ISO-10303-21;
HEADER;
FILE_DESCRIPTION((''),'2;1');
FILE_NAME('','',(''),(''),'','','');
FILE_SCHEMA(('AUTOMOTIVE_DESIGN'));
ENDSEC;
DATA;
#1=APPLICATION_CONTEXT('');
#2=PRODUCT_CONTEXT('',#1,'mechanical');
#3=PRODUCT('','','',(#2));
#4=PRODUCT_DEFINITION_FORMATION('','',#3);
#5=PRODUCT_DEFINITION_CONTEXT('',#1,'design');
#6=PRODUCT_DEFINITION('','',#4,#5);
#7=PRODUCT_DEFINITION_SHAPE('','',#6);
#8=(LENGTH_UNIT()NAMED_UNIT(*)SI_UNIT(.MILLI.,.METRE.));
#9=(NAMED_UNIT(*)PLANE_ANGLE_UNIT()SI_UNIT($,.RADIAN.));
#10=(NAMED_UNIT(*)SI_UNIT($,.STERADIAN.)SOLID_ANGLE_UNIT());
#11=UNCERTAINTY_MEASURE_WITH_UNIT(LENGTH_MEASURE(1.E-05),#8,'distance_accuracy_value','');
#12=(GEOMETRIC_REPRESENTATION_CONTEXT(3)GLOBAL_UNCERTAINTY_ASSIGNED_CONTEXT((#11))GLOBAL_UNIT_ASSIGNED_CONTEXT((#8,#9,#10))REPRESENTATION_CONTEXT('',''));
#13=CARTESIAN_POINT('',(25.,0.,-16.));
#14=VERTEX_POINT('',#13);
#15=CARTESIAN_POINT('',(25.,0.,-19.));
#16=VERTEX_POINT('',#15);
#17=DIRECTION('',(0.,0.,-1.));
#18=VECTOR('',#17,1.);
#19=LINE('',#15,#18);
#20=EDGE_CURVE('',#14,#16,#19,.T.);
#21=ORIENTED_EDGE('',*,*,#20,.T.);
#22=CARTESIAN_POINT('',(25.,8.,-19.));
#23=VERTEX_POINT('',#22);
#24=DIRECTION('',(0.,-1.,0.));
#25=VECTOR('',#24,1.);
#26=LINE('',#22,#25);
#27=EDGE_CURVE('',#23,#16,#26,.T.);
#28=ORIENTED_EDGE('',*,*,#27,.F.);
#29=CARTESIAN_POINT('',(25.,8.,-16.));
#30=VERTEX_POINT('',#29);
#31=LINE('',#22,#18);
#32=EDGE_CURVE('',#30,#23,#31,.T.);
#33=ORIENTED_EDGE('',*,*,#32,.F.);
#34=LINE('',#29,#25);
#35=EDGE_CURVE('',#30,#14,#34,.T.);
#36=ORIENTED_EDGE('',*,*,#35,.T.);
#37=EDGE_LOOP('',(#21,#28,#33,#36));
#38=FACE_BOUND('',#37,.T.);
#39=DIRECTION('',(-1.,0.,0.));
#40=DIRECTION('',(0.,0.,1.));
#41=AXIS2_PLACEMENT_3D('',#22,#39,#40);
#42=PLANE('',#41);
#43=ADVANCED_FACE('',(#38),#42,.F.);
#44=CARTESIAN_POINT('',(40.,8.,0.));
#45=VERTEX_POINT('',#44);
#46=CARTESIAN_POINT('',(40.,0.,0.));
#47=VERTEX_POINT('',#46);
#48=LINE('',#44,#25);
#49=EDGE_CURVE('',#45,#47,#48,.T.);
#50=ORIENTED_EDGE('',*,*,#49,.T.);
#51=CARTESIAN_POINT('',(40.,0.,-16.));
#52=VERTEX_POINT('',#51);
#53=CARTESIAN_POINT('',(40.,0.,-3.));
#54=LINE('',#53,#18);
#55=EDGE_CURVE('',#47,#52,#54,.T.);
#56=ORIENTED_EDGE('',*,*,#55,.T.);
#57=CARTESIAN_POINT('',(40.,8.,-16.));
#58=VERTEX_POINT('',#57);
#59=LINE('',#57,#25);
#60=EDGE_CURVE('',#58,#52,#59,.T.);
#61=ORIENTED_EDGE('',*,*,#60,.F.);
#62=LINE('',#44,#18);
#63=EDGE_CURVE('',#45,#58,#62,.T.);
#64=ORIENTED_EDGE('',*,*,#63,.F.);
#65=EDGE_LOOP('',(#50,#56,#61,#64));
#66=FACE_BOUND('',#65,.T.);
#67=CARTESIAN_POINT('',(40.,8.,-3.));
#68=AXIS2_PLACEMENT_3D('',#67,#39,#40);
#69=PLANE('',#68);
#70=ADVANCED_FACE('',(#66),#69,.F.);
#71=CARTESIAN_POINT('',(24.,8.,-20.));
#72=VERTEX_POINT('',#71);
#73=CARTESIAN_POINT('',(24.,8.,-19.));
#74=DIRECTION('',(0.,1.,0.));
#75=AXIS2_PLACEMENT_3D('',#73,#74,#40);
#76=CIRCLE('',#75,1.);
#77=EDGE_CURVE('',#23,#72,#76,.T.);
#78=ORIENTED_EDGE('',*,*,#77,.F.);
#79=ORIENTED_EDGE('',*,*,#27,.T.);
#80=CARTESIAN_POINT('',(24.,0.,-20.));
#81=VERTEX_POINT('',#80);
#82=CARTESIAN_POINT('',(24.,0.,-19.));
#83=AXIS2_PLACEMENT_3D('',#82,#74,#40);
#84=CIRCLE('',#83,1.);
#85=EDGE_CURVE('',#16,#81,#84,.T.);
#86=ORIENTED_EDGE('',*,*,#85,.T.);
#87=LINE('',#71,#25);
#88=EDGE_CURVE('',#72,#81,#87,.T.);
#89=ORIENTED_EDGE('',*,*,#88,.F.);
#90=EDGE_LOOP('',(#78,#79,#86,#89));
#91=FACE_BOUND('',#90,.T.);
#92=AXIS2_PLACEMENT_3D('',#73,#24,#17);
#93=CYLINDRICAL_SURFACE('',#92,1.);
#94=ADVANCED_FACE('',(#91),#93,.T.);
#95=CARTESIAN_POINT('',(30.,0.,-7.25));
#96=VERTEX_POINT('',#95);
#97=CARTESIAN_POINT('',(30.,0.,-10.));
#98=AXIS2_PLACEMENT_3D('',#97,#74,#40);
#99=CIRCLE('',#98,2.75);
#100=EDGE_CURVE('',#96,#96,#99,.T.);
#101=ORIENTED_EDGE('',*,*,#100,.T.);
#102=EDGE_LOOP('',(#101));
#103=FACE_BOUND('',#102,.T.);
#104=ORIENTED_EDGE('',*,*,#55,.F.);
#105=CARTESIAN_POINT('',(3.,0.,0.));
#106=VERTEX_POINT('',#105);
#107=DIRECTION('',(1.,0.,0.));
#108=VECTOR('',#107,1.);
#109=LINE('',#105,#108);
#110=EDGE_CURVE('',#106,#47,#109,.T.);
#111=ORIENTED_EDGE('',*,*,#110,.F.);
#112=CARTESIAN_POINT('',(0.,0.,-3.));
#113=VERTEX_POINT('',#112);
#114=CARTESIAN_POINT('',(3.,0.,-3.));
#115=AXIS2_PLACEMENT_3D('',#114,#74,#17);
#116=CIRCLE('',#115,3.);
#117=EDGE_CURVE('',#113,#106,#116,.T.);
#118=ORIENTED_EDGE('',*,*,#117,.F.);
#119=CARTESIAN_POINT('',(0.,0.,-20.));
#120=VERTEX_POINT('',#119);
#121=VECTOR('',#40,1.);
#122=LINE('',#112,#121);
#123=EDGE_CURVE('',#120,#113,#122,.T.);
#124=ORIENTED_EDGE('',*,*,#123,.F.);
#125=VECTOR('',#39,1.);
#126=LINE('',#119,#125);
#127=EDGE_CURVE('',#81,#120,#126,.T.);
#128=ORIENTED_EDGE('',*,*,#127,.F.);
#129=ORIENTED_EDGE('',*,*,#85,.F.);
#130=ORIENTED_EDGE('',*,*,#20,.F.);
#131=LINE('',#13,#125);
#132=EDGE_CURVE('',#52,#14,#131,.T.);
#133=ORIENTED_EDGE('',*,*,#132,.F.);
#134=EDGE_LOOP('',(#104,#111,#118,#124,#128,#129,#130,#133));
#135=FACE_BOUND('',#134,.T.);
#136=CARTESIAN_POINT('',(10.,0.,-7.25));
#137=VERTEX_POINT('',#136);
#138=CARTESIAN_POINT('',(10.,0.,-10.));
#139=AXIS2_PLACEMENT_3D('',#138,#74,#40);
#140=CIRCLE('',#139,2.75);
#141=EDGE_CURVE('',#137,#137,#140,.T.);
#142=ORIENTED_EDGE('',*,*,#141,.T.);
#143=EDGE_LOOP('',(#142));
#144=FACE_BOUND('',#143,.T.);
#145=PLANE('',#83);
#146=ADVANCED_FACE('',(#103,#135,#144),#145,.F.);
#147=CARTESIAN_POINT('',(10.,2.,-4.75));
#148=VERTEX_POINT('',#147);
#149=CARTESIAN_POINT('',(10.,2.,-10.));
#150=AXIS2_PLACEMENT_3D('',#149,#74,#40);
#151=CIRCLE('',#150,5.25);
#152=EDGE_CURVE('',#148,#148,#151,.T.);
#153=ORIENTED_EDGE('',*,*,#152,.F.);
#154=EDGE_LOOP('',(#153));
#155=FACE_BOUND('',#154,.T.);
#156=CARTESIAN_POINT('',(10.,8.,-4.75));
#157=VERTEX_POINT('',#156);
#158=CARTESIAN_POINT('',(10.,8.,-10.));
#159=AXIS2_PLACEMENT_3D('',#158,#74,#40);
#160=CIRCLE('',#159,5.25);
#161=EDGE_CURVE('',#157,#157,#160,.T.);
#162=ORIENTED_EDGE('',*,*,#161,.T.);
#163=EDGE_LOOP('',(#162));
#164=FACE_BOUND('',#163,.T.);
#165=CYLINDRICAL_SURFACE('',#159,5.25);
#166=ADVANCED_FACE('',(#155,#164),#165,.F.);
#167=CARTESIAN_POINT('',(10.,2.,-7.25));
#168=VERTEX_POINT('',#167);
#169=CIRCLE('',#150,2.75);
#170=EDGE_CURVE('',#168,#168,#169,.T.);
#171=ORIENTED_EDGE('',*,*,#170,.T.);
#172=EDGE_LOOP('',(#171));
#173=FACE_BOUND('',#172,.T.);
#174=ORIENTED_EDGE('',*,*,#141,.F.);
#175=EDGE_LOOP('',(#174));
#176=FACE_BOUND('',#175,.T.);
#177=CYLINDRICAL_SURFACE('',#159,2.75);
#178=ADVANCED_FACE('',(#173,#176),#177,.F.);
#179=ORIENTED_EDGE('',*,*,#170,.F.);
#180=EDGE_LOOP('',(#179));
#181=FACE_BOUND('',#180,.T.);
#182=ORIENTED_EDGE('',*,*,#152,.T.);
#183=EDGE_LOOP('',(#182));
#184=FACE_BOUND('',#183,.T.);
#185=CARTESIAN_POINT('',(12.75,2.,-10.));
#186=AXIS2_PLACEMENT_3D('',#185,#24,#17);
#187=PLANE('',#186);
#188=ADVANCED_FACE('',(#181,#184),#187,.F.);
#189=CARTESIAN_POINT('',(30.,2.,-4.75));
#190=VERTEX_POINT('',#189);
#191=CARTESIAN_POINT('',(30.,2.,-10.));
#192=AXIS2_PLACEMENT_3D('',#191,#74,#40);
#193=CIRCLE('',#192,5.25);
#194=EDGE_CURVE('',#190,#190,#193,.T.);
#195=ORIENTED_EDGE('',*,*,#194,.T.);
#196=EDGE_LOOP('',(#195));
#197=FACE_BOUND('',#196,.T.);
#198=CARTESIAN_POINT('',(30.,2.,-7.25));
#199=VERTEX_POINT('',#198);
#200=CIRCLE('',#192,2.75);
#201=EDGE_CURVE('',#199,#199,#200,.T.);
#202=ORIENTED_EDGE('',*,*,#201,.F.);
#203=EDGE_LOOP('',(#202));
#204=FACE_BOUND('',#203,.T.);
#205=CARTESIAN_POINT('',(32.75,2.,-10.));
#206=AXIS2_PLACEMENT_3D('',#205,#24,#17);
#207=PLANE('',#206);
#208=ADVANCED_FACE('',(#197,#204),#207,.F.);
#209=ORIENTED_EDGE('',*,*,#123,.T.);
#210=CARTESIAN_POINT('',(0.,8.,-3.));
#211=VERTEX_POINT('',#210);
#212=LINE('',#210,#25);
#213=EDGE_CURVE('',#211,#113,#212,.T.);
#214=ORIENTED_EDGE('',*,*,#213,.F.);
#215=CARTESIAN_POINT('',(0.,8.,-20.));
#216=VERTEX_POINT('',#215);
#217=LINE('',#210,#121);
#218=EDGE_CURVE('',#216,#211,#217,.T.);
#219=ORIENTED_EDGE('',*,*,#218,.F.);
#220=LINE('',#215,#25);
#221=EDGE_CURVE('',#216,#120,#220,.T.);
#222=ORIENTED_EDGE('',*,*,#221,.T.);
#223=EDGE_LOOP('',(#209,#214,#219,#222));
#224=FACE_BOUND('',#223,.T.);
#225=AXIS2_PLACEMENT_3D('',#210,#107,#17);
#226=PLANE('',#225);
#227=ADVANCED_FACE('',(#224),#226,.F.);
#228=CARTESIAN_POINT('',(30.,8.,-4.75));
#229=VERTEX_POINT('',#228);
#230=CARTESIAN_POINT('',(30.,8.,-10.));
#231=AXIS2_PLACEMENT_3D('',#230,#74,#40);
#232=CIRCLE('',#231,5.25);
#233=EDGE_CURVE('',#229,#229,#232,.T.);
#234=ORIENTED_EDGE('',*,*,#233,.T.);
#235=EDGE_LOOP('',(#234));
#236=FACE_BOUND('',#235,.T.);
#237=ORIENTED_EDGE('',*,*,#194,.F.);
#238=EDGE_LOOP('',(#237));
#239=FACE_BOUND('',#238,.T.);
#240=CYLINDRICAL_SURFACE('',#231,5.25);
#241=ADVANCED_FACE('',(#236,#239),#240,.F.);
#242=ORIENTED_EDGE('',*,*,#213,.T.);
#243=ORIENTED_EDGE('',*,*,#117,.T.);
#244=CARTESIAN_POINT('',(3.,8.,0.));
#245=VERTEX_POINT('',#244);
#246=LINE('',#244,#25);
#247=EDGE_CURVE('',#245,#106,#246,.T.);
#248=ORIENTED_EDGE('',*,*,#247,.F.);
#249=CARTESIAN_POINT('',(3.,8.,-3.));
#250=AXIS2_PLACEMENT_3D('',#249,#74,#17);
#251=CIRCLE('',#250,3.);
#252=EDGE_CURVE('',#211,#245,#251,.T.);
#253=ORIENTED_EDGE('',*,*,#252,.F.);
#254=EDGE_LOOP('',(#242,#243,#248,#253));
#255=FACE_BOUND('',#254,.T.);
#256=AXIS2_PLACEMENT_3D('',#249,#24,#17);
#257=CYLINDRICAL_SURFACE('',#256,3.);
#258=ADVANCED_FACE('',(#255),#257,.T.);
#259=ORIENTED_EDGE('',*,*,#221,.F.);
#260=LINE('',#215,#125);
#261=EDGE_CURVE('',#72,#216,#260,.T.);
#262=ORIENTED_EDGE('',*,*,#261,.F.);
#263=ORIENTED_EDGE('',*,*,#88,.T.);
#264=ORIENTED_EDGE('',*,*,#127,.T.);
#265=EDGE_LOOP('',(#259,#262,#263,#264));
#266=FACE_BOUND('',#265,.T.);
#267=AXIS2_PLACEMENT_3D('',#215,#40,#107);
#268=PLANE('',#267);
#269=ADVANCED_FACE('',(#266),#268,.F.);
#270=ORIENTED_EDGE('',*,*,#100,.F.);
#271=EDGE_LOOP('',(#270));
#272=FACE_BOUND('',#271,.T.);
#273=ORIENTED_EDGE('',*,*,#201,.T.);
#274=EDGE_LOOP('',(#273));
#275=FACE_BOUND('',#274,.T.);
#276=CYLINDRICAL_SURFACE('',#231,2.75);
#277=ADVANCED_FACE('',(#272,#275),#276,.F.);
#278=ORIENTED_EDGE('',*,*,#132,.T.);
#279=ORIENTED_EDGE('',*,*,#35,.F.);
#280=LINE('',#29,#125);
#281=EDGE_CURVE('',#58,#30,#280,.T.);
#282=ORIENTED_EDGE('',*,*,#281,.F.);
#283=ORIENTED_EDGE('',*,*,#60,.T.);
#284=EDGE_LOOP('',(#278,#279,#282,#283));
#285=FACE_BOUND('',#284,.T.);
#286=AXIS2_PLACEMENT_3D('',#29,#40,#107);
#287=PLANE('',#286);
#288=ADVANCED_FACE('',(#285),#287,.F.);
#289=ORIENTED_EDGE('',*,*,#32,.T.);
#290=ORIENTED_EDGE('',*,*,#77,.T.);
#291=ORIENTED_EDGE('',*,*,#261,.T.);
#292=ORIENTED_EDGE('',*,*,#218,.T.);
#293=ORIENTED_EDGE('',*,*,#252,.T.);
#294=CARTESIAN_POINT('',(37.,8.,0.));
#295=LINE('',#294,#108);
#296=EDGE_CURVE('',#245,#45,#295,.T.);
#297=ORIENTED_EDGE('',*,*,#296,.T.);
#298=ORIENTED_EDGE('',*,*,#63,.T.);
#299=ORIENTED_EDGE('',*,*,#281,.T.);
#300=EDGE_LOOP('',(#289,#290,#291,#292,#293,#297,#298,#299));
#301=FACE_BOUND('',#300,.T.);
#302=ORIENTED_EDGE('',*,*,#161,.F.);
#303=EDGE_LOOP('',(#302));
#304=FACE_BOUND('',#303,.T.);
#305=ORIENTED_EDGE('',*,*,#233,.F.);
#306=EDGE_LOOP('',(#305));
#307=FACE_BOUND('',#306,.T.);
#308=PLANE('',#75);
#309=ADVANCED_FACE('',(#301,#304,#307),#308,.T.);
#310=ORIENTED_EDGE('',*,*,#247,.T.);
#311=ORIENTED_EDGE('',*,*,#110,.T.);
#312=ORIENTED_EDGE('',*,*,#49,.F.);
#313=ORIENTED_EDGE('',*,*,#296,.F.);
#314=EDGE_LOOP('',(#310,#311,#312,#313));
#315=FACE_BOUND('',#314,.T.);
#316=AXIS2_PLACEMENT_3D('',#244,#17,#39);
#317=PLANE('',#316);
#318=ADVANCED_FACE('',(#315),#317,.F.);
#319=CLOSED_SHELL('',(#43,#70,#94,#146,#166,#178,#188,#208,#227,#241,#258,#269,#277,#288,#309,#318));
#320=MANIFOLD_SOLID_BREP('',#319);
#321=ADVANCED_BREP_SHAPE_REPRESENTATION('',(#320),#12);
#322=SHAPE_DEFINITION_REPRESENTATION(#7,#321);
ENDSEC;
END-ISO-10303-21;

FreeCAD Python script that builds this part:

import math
import FreeCAD as App
import Part
import Sketcher
Q = App.Units.Quantity

doc = App.newDocument("Part")
body = doc.addObject("PartDesign::Body", "Body")

sketch1 = doc.addObject("Sketcher::SketchObject", "Sketch")
body.addObject(sketch1)
sketch1.AttachmentSupport = (doc.XZ_Plane, [""])
sketch1.MapMode = "FlatFace"
sketch1.addGeometry([
    Part.LineSegment(App.Vector(3, 0, 0), App.Vector(40, 0, 0)),
    Part.LineSegment(App.Vector(40, 0, 0), App.Vector(40, -16, 0)),
    Part.LineSegment(App.Vector(40, -16, 0), App.Vector(25, -16, 0)),
    Part.LineSegment(App.Vector(25, -16, 0), App.Vector(25, -19, 0)),
    Part.ArcOfCircle(Part.Circle(App.Vector(24, -19, 0), App.Vector(0, 0, 1), 1), math.radians(-90), math.radians(0)),
    Part.LineSegment(App.Vector(24, -20, 0), App.Vector(0, -20, 0)),
    Part.LineSegment(App.Vector(0, -20, 0), App.Vector(0, -3, 0)),
    Part.ArcOfCircle(Part.Circle(App.Vector(3, -3, 0), App.Vector(0, 0, 1), 3), math.radians(90), math.radians(180)),
], False)
sketch1.addConstraint([
    Sketcher.Constraint("Coincident", 0, 2, 1, 1),
    Sketcher.Constraint("Coincident", 1, 2, 2, 1),
    Sketcher.Constraint("Coincident", 2, 2, 3, 1),
    Sketcher.Constraint("Tangent", 3, 2, 4, 2),
    Sketcher.Constraint("Tangent", 4, 1, 5, 1),
    Sketcher.Constraint("Coincident", 5, 2, 6, 1),
    Sketcher.Constraint("Tangent", 6, 2, 7, 2),
    Sketcher.Constraint("Tangent", 7, 1, 0, 1),
    Sketcher.Constraint("Horizontal", 0),
    Sketcher.Constraint("Vertical", 1),
    Sketcher.Constraint("Horizontal", 2),
    Sketcher.Constraint("Vertical", 3),
    Sketcher.Constraint("Horizontal", 5),
    Sketcher.Constraint("Vertical", 6),
    Sketcher.Constraint("PointOnObject", 0, 2, -1),
    Sketcher.Constraint("PointOnObject", 5, 2, -2),
    Sketcher.Constraint("Radius", 4, Q("1 mm")),
    Sketcher.Constraint("Radius", 7, Q("3 mm")),
    Sketcher.Constraint("DistanceX", 0, 1, 0, 2, Q("37 mm")),
    Sketcher.Constraint("DistanceX", 2, 2, 2, 1, Q("15 mm")),
    Sketcher.Constraint("DistanceY", 1, 2, 1, 1, Q("16 mm")),
    Sketcher.Constraint("DistanceY", 3, 2, 3, 1, Q("3 mm")),
])
pad1 = doc.addObject("PartDesign::Pad", "Pad")
body.addObject(pad1)
pad1.Profile = sketch1
pad1.Length = 8
pad1.Reversed = True

sketch2 = doc.addObject("Sketcher::SketchObject", "Sketch001")
body.addObject(sketch2)
sketch2.AttachmentSupport = (doc.XZ_Plane, [""])
sketch2.MapMode = "FlatFace"
sketch2.AttachmentOffset = App.Placement(App.Vector(0, 0, -8), App.Rotation())
sketch2.addGeometry([
    Part.Circle(App.Vector(30, -10, 0), App.Vector(0, 0, 1), 2.8),
    Part.Circle(App.Vector(10, -10, 0), App.Vector(0, 0, 1), 2.8),
], False)
sketch2.addConstraint([
    Sketcher.Constraint("Equal", 0, 1),
    Sketcher.Constraint("Horizontal", 0, 3, 1, 3),
    Sketcher.Constraint("Diameter", 0, Q("5.5 mm")),
    Sketcher.Constraint("DistanceX", -1, 1, 0, 3, Q("30 mm")),
    Sketcher.Constraint("DistanceY", 0, 3, -1, 1, Q("10 mm")),
    Sketcher.Constraint("DistanceX", -1, 1, 1, 3, Q("10 mm")),
])
doc.recompute()
hole = doc.addObject("PartDesign::Hole", "Hole")
body.addObject(hole)
hole.Profile = sketch2
hole.ThreadType = "None"
hole.Diameter = 5.5
hole.DepthType = "Dimension"
hole.Depth = 8
hole.DrillPoint = "Flat"
hole.HoleCutType = "Counterbore"
hole.HoleCutDiameter = 10.5
hole.HoleCutDepth = 6
hole.Reversed = True

doc.recompute()
